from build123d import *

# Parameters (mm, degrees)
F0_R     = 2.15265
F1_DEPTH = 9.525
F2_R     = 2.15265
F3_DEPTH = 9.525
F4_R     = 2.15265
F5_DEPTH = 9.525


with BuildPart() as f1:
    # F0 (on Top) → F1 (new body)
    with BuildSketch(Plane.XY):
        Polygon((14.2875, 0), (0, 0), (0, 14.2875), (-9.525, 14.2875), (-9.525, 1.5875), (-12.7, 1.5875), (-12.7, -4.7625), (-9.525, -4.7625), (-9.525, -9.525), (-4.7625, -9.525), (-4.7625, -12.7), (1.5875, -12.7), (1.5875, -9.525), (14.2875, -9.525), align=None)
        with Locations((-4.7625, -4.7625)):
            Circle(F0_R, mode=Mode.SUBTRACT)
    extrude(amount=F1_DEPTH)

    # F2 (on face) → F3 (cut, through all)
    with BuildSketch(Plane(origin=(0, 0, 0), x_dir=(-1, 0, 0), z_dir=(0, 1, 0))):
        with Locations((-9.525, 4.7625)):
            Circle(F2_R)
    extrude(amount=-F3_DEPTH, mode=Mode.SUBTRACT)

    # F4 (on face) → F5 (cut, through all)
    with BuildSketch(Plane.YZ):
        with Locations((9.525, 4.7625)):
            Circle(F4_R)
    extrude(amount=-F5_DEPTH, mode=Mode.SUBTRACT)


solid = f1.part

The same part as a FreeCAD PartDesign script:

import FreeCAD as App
import Part
import Sketcher
from FreeCAD import Vector
Q = App.Units.Quantity

doc = App.newDocument("Part")
params = doc.addObject("Spreadsheet::Sheet", "Params")
for row, (alias, value) in enumerate([
    ("sketch1_width", "0.5 in"),
    ("sketch1_width2", "0.25 in"),
    ("sketch1_width3", "0.5625 in"),
    ("sketch1_width4", "0.375 in"),
    ("pad1_length", "0.375 in"),
], start=1):
    params.set(f"A{row}", alias)
    params.set(f"B{row}", "=" + value)
    params.setAlias(f"B{row}", alias)

body = doc.addObject("PartDesign::Body", "Body")

# Sketch on XY plane
sketch1 = body.newObject("Sketcher::SketchObject", "Sketch")
sketch1.AttachmentSupport = (doc.getObject("XY_Plane"), [""])
sketch1.MapMode = "FlatFace"
sketch1.addGeometry([
    Part.LineSegment(Vector(14.2875, 0, 0), Vector(0, 0, 0)),  # 0
    Part.LineSegment(Vector(0, 0, 0), Vector(0, 14.2875, 0)),  # 1
    Part.LineSegment(Vector(0, 14.2875, 0), Vector(-9.525, 14.2875, 0)),  # 2
    Part.LineSegment(Vector(-9.525, 14.2875, 0), Vector(-9.525, 1.5875, 0)),  # 3
    Part.LineSegment(Vector(-9.525, 1.5875, 0), Vector(-12.7, 1.5875, 0)),  # 4
    Part.LineSegment(Vector(-12.7, 1.5875, 0), Vector(-12.7, -4.7625, 0)),  # 5
    Part.LineSegment(Vector(-12.7, -4.7625, 0), Vector(-9.525, -4.7625, 0)),  # 6
    Part.LineSegment(Vector(-9.525, -4.7625, 0), Vector(-9.525, -9.525, 0)),  # 7
    Part.LineSegment(Vector(-9.525, -9.525, 0), Vector(-4.7625, -9.525, 0)),  # 8
    Part.LineSegment(Vector(-4.7625, -9.525, 0), Vector(-4.7625, -12.7, 0)),  # 9
    Part.LineSegment(Vector(-4.7625, -12.7, 0), Vector(1.5875, -12.7, 0)),  # 10
    Part.LineSegment(Vector(1.5875, -12.7, 0), Vector(1.5875, -9.525, 0)),  # 11
    Part.LineSegment(Vector(1.5875, -9.525, 0), Vector(14.2875, -9.525, 0)),  # 12
    Part.LineSegment(Vector(14.2875, -9.525, 0), Vector(14.2875, 0, 0)),  # 13
    Part.Circle(Vector(-4.7625, -4.7625, 0), Vector(0, 0, 1), 2.15265),  # 14
], False)
sketch1.addConstraint([
    Sketcher.Constraint("Coincident", 0, 2, 1, 1),
    Sketcher.Constraint("Coincident", 1, 2, 2, 1),
    Sketcher.Constraint("Coincident", 2, 2, 3, 1),
    Sketcher.Constraint("Coincident", 3, 2, 4, 1),
    Sketcher.Constraint("Coincident", 4, 2, 5, 1),
    Sketcher.Constraint("Coincident", 5, 2, 6, 1),
    Sketcher.Constraint("Coincident", 6, 2, 7, 1),
    Sketcher.Constraint("Coincident", 7, 2, 8, 1),
    Sketcher.Constraint("Coincident", 8, 2, 9, 1),
    Sketcher.Constraint("Coincident", 9, 2, 10, 1),
    Sketcher.Constraint("Coincident", 10, 2, 11, 1),
    Sketcher.Constraint("Coincident", 11, 2, 12, 1),
    Sketcher.Constraint("Coincident", 12, 2, 13, 1),
    Sketcher.Constraint("Coincident", 13, 2, 0, 1),
    Sketcher.Constraint("Horizontal", 0),
    Sketcher.Constraint("Vertical", 1),
    Sketcher.Constraint("Horizontal", 2),
    Sketcher.Constraint("Vertical", 3),
    Sketcher.Constraint("Horizontal", 4),
    Sketcher.Constraint("Vertical", 5),
    Sketcher.Constraint("Horizontal", 6),
    Sketcher.Constraint("Vertical", 7),
    Sketcher.Constraint("Horizontal", 8),
    Sketcher.Constraint("Vertical", 9),
    Sketcher.Constraint("Horizontal", 10),
    Sketcher.Constraint("Vertical", 11),
    Sketcher.Constraint("Horizontal", 12),
    Sketcher.Constraint("Vertical", 13),
    Sketcher.Constraint("Coincident", 0, 2, -1, 1),
    Sketcher.Constraint("Horizontal", 14, 3, 5, 2),
    Sketcher.Constraint("Horizontal", 8, 2, 11, 2),
    Sketcher.Constraint("Vertical", 3, 2, 6, 2),
    Sketcher.Constraint("Vertical", 14, 3, 8, 2),
    Sketcher.Constraint("Equal", 0, 1),
    Sketcher.Constraint("Equal", 12, 3),
    Sketcher.Constraint("Equal", 10, 5),
    Sketcher.Constraint("Equal", 8, 7),
    Sketcher.Constraint("Equal", 6, 9),
    Sketcher.Constraint("DistanceX", 12, 1, 12, 2, Q("0.5 in")),
    Sketcher.Constraint("Diameter", 14, Q("0.1695 in")),
    Sketcher.Constraint("DistanceX", 10, 1, 10, 2, Q("0.25 in")),
    Sketcher.Constraint("DistanceX", 4, 2, -1, 1, Q("0.5 in")),
    Sketcher.Constraint("DistanceX", 0, 2, 0, 1, Q("0.5625 in")),
    Sketcher.Constraint("DistanceX", 2, 2, 2, 1, Q("0.375 in")),
])
sketch1.setExpression("Constraints[38]", "Params.sketch1_width")
sketch1.setExpression("Constraints[40]", "Params.sketch1_width2")
sketch1.setExpression("Constraints[42]", "Params.sketch1_width3")
sketch1.setExpression("Constraints[43]", "Params.sketch1_width4")
pad1 = body.newObject("PartDesign::Pad", "Pad")
pad1.Profile = sketch1
pad1.setExpression("Length", "Params.pad1_length")

# Sketch on XZ plane
sketch2 = body.newObject("Sketcher::SketchObject", "Sketch001")
sketch2.AttachmentSupport = (doc.getObject("XZ_Plane"), [""])
sketch2.MapMode = "FlatFace"
sketch2.addGeometry(Part.Circle(Vector(9.525, 4.7625, 0), Vector(0, 0, 1), 2.15265), False)
sketch2.addConstraint([
    Sketcher.Constraint("Diameter", 0, Q("0.1695 in")),
    Sketcher.Constraint("DistanceX", -1, 1, 0, 3, Q("0.375 in")),
    Sketcher.Constraint("DistanceY", -1, 1, 0, 3, Q("0.1875 in")),
])
pocket1 = body.newObject("PartDesign::Pocket", "Pocket")
pocket1.Profile = sketch2
pocket1.Type = "ThroughAll"
pocket1.Reversed = True

# Sketch on YZ plane
sketch3 = body.newObject("Sketcher::SketchObject", "Sketch002")
sketch3.AttachmentSupport = (doc.getObject("YZ_Plane"), [""])
sketch3.MapMode = "FlatFace"
sketch3.addGeometry(Part.Circle(Vector(9.525, 4.7625, 0), Vector(0, 0, 1), 2.15265), False)
sketch3.addConstraint([
    Sketcher.Constraint("Diameter", 0, Q("0.1695 in")),
    Sketcher.Constraint("DistanceX", -1, 1, 0, 3, Q("0.375 in")),
    Sketcher.Constraint("DistanceY", -1, 1, 0, 3, Q("0.1875 in")),
])
pocket2 = body.newObject("PartDesign::Pocket", "Pocket001")
pocket2.Profile = sketch3
pocket2.Type = "ThroughAll"

doc.recompute()
